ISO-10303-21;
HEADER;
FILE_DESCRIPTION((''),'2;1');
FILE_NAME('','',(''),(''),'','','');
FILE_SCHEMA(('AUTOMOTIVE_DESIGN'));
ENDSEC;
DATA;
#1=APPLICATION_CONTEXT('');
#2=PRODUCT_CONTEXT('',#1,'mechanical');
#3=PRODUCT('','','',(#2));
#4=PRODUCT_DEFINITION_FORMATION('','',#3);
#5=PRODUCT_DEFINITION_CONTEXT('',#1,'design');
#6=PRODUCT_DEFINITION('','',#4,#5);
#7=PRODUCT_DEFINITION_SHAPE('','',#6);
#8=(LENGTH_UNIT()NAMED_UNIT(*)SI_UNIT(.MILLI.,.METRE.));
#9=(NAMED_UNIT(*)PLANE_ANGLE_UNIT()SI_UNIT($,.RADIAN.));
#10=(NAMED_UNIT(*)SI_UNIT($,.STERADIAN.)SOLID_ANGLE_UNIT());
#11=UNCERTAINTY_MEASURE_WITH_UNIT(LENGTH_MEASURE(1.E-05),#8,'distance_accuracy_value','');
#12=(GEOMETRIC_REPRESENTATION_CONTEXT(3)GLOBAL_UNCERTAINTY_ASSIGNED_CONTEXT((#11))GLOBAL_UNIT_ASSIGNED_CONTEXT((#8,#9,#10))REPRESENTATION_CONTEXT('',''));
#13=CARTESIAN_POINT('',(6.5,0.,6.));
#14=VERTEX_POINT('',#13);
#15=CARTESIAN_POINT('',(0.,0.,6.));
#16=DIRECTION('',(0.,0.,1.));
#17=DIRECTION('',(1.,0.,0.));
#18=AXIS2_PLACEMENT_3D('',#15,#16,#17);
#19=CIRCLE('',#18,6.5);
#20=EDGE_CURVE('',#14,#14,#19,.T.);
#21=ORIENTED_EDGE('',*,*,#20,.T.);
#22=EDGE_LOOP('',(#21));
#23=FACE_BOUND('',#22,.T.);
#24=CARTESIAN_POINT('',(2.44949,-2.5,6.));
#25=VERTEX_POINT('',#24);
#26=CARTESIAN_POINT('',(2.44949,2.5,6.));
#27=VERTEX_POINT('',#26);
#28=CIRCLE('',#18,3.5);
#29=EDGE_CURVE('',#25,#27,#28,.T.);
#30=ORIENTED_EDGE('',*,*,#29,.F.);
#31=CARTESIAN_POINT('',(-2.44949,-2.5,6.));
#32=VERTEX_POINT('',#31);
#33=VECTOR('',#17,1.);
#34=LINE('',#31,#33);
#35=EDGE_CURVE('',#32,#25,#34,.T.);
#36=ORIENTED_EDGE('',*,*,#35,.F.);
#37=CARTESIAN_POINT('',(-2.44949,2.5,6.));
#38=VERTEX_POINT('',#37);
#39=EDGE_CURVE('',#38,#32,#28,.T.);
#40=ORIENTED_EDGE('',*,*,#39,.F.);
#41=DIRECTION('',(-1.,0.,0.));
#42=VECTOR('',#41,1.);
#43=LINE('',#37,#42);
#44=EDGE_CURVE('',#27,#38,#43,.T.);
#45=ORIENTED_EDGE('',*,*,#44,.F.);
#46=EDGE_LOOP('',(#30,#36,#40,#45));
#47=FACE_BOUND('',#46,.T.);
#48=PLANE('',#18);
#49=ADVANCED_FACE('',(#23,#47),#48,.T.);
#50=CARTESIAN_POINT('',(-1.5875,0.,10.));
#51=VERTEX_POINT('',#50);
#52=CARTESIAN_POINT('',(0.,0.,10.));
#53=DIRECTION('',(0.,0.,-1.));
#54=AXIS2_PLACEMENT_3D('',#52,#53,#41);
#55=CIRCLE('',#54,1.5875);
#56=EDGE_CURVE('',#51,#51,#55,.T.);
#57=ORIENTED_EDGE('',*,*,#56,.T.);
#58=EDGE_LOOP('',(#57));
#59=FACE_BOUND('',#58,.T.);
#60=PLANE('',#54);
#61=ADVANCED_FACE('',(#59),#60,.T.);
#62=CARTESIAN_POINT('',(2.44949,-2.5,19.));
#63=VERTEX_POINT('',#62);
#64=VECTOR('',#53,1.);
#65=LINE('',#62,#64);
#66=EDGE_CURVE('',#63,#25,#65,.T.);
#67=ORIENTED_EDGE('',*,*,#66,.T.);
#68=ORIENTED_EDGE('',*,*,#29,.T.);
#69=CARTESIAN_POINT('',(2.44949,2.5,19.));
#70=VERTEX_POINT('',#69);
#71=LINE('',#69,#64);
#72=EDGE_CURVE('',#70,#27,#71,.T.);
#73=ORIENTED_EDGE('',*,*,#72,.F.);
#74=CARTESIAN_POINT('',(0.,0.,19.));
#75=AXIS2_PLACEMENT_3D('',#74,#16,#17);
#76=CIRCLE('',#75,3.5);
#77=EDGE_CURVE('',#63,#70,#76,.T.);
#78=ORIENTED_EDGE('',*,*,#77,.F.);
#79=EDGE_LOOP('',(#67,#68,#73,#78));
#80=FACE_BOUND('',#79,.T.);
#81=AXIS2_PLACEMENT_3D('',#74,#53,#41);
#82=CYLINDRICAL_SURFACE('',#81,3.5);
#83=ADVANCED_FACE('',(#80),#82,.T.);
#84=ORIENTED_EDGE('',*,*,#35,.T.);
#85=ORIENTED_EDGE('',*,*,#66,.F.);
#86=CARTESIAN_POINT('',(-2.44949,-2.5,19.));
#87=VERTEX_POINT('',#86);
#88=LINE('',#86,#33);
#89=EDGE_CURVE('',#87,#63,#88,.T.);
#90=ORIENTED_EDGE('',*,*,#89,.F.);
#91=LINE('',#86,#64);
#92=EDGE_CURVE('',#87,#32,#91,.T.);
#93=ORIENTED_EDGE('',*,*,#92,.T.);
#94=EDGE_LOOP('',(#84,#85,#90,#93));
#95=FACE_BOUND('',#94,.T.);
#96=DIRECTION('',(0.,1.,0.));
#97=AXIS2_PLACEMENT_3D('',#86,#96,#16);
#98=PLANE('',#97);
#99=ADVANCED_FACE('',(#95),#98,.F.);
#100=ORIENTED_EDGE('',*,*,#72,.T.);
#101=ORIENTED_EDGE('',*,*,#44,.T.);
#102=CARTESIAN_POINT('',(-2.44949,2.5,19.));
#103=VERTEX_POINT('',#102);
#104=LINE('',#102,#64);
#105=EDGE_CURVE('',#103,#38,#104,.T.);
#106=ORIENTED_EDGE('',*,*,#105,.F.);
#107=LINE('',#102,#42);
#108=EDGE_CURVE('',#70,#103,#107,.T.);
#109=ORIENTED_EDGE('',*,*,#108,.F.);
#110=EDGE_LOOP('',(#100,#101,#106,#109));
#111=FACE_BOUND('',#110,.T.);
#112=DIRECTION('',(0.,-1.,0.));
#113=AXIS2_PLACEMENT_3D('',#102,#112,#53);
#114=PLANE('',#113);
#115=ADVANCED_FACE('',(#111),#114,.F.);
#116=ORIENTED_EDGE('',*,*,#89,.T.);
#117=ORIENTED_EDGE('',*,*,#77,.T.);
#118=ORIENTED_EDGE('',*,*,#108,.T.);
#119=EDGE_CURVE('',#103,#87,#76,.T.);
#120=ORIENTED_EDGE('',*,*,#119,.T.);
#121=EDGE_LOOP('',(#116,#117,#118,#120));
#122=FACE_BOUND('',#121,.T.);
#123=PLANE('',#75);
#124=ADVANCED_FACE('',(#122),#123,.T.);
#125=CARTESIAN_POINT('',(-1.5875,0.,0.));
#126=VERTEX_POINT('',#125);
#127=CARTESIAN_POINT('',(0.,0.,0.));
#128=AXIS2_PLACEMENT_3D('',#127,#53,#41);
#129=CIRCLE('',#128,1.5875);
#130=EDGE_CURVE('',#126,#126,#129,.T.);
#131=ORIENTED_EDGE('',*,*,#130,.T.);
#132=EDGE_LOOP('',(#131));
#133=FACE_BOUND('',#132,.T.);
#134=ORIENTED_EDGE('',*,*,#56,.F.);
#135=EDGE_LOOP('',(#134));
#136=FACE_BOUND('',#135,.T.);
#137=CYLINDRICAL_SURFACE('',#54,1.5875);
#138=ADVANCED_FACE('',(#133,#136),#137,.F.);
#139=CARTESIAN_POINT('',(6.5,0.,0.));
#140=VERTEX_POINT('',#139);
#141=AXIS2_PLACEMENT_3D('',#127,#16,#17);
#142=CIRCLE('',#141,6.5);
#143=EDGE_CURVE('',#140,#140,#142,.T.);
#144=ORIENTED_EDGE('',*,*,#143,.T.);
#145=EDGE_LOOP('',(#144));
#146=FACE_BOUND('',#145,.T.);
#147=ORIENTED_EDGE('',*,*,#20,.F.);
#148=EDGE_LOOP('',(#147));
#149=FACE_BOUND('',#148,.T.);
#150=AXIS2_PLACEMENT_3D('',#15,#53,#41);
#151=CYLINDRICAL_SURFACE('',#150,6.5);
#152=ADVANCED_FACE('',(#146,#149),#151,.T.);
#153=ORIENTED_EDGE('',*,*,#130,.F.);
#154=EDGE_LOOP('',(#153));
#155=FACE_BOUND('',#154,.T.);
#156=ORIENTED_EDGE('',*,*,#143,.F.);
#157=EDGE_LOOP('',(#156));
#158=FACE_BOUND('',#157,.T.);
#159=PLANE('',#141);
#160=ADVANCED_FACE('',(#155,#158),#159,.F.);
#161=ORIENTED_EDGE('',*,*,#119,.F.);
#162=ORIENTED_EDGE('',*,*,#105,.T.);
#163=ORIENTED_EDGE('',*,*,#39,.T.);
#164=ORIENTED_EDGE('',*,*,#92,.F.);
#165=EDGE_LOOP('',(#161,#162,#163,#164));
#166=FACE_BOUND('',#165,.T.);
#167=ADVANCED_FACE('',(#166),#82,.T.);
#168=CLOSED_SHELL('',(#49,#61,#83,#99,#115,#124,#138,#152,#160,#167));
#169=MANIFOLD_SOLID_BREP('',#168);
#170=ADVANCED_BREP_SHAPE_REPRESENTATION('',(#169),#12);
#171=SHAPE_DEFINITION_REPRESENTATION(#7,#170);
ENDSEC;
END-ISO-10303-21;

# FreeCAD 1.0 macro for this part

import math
import FreeCAD as App
import Part
import Sketcher

doc = App.newDocument("Part")
body = doc.addObject("PartDesign::Body", "Body")

sketch1 = body.newObject("Sketcher::SketchObject", "Sketch")
sketch1.AttachmentSupport = (doc.getObject("XY_Plane"), [""])
sketch1.MapMode = "FlatFace"
sketch1.addGeometry(Part.Circle(App.Vector(0, 0, 0), App.Vector(0, 0, 1), 6), False)
sketch1.addConstraint(Sketcher.Constraint("Coincident", 0, 3, -1, 1))
sketch1.addConstraint(Sketcher.Constraint("Diameter", 0, 13.0))
pad1 = body.newObject("PartDesign::Pad", "Pad")
pad1.Profile = sketch1
pad1.Length = 6

sketch2 = body.newObject("Sketcher::SketchObject", "Sketch001")
sketch2.AttachmentSupport = (doc.getObject("XY_Plane"), [""])
sketch2.MapMode = "FlatFace"
sketch2.AttachmentOffset = App.Placement(App.Vector(0, 0, 6), App.Rotation())
sketch2.addGeometry(Part.LineSegment(App.Vector(2.4, 2.5, 0), App.Vector(-2.4, 2.5, 0)), False)
sketch2.addGeometry(Part.ArcOfCircle(Part.Circle(App.Vector(0, 0, 0), App.Vector(0, 0, 1), 3.5), math.radians(134), math.radians(226)), False)
sketch2.addGeometry(Part.LineSegment(App.Vector(-2.4, -2.5, 0), App.Vector(2.4, -2.5, 0)), False)
sketch2.addGeometry(Part.ArcOfCircle(Part.Circle(App.Vector(0, 0, 0), App.Vector(0, 0, 1), 3.5), math.radians(-46), math.radians(46)), False)
sketch2.addConstraint(Sketcher.Constraint("Coincident", 0, 2, 1, 1))
sketch2.addConstraint(Sketcher.Constraint("Coincident", 1, 2, 2, 1))
sketch2.addConstraint(Sketcher.Constraint("Coincident", 2, 2, 3, 1))
sketch2.addConstraint(Sketcher.Constraint("Coincident", 3, 2, 0, 1))
sketch2.addConstraint(Sketcher.Constraint("Horizontal", 0))
sketch2.addConstraint(Sketcher.Constraint("Horizontal", 2))
sketch2.addConstraint(Sketcher.Constraint("Coincident", 1, 3, -1, 1))
sketch2.addConstraint(Sketcher.Constraint("Coincident", 3, 3, -1, 1))
sketch2.addConstraint(Sketcher.Constraint("Equal", 1, 3))
sketch2.addConstraint(Sketcher.Constraint("Vertical", 0, 2, 1, 2))
sketch2.addConstraint(Sketcher.Constraint("Radius", 1, 3.5))
sketch2.addConstraint(Sketcher.Constraint("DistanceY", 1, 2, 0, 2, 5.0))
pad2 = body.newObject("PartDesign::Pad", "Pad001")
pad2.Profile = sketch2
pad2.Length = 13

sketch3 = body.newObject("Sketcher::SketchObject", "Sketch002")
sketch3.AttachmentSupport = (doc.getObject("XY_Plane"), [""])
sketch3.MapMode = "FlatFace"
sketch3.addGeometry(Part.Circle(App.Vector(0, 0, 0), App.Vector(0, 0, 1), 1.6), False)
sketch3.addConstraint(Sketcher.Constraint("Coincident", 0, 3, -1, 1))
sketch3.addConstraint(Sketcher.Constraint("Diameter", 0, 3.175))
pocket1 = body.newObject("PartDesign::Pocket", "Pocket")
pocket1.Profile = sketch3
pocket1.Length = 10
pocket1.Reversed = True

doc.recompute()
